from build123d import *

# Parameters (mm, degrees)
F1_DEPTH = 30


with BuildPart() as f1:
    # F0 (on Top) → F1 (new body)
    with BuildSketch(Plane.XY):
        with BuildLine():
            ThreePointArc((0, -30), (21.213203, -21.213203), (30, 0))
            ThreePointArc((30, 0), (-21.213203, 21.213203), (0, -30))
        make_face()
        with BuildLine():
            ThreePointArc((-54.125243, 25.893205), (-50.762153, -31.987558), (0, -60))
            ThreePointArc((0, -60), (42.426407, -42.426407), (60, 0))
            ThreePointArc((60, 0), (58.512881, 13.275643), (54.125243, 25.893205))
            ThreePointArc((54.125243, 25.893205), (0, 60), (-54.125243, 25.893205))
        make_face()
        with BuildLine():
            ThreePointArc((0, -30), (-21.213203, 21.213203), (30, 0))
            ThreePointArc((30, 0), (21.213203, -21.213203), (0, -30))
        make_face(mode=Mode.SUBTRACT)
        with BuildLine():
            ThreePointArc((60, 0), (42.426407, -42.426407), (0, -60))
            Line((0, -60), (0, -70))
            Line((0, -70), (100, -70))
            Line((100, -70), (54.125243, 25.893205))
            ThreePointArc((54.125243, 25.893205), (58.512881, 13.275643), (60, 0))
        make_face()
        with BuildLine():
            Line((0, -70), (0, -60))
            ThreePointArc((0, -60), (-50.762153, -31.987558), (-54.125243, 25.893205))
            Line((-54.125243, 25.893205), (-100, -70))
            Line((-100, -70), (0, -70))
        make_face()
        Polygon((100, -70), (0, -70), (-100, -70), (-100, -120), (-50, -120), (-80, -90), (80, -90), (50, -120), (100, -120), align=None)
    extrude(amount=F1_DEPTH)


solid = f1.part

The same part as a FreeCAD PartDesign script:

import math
import FreeCAD as App
import Part
import Sketcher
from FreeCAD import Vector
Q = App.Units.Quantity

doc = App.newDocument("Part")
params = doc.addObject("Spreadsheet::Sheet", "Params")
for row, (alias, value) in enumerate([
    ("sketch1_radius", "60 mm"),
    ("sketch1_radius2", "30.000001 mm"),
    ("sketch1_width", "50 mm"),
    ("sketch1_width2", "160 mm"),
    ("pad1_length", "30 mm"),
], start=1):
    params.set(f"A{row}", alias)
    params.set(f"B{row}", "=" + value)
    params.setAlias(f"B{row}", alias)

body = doc.addObject("PartDesign::Body", "Body")

sketch1 = doc.addObject("Sketcher::SketchObject", "Sketch")
body.addObject(sketch1)
sketch1.AttachmentSupport = (doc.XY_Plane, [""])
sketch1.MapMode = "FlatFace"
sketch1.addGeometry(Part.LineSegment(Vector(100, -70, 0), Vector(54, 26, 0)), False)
sketch1.addGeometry(Part.ArcOfCircle(Part.Circle(Vector(0, 0, 0), Vector(0, 0, 1), 60), math.radians(26), math.radians(154)), False)
sketch1.addGeometry(Part.LineSegment(Vector(-54, 26, 0), Vector(-100, -70, 0)), False)
sketch1.addGeometry(Part.LineSegment(Vector(-100, -70, 0), Vector(-100, -120, 0)), False)
sketch1.addGeometry(Part.LineSegment(Vector(-100, -120, 0), Vector(-50, -120, 0)), False)
sketch1.addGeometry(Part.LineSegment(Vector(-50, -120, 0), Vector(-80, -90, 0)), False)
sketch1.addGeometry(Part.LineSegment(Vector(-80, -90, 0), Vector(80, -90, 0)), False)
sketch1.addGeometry(Part.LineSegment(Vector(80, -90, 0), Vector(50, -120, 0)), False)
sketch1.addGeometry(Part.LineSegment(Vector(50, -120, 0), Vector(100, -120, 0)), False)
sketch1.addGeometry(Part.LineSegment(Vector(100, -120, 0), Vector(100, -70, 0)), False)
sketch1.addGeometry(Part.ArcOfCircle(Part.Circle(Vector(0, 0, 0), Vector(0, 0, 1), 30), math.radians(-90), math.radians(0)), False)
sketch1.addGeometry(Part.ArcOfCircle(Part.Circle(Vector(0, 0, 0), Vector(0, 0, 1), 30), math.radians(0), math.radians(270)), False)
sketch1.addConstraint(Sketcher.Constraint("Tangent", 0, 2, 1, 1))
sketch1.addConstraint(Sketcher.Constraint("Tangent", 1, 2, 2, 1))
sketch1.addConstraint(Sketcher.Constraint("Coincident", 2, 2, 3, 1))
sketch1.addConstraint(Sketcher.Constraint("Coincident", 3, 2, 4, 1))
sketch1.addConstraint(Sketcher.Constraint("Coincident", 4, 2, 5, 1))
sketch1.addConstraint(Sketcher.Constraint("Coincident", 5, 2, 6, 1))
sketch1.addConstraint(Sketcher.Constraint("Coincident", 6, 2, 7, 1))
sketch1.addConstraint(Sketcher.Constraint("Coincident", 7, 2, 8, 1))
sketch1.addConstraint(Sketcher.Constraint("Coincident", 8, 2, 9, 1))
sketch1.addConstraint(Sketcher.Constraint("Coincident", 9, 2, 0, 1))
sketch1.addConstraint(Sketcher.Constraint("Tangent", 10, 1, 11, 2))
sketch1.addConstraint(Sketcher.Constraint("Coincident", 11, 1, 10, 2))
sketch1.addConstraint(Sketcher.Constraint("Vertical", 3))
sketch1.addConstraint(Sketcher.Constraint("Horizontal", 4))
sketch1.addConstraint(Sketcher.Constraint("Horizontal", 6))
sketch1.addConstraint(Sketcher.Constraint("Horizontal", 8))
sketch1.addConstraint(Sketcher.Constraint("Vertical", 9))
sketch1.addConstraint(Sketcher.Constraint("Coincident", 1, 3, -1, 1))
sketch1.addConstraint(Sketcher.Constraint("Coincident", 10, 3, -1, 1))
sketch1.addConstraint(Sketcher.Constraint("Symmetric", 4, 2, 7, 2, -2))
sketch1.addConstraint(Sketcher.Constraint("Symmetric", 2, 2, 9, 2, -2))
sketch1.addConstraint(Sketcher.Constraint("PointOnObject", 10, 1, -2))
sketch1.addConstraint(Sketcher.Constraint("PointOnObject", 11, 1, -1))
sketch1.addConstraint(Sketcher.Constraint("Perpendicular", 5, 7))
sketch1.addConstraint(Sketcher.Constraint("Equal", 8, 3))
sketch1.addConstraint(Sketcher.Constraint("Equal", 5, 7))
sketch1.addConstraint(Sketcher.Constraint("Radius", 1, Q("60 mm")))
sketch1.addConstraint(Sketcher.Constraint("Radius", 10, Q("30.000001 mm")))
sketch1.addConstraint(Sketcher.Constraint("DistanceX", 4, 1, 4, 2, Q("50 mm")))
sketch1.addConstraint(Sketcher.Constraint("DistanceX", 6, 1, 6, 2, Q("160 mm")))
sketch1.addConstraint(Sketcher.Constraint("DistanceX", 2, 2, -1, 1, Q("100 mm")))
sketch1.addConstraint(Sketcher.Constraint("DistanceY", 2, 2, -1, 1, Q("70 mm")))
sketch1.setExpression("Constraints[26]", "Params.sketch1_radius")
sketch1.setExpression("Constraints[27]", "Params.sketch1_radius2")
sketch1.setExpression("Constraints[28]", "Params.sketch1_width")
sketch1.setExpression("Constraints[29]", "Params.sketch1_width2")
pad1 = doc.addObject("PartDesign::Pad", "Pad")
body.addObject(pad1)
pad1.Profile = sketch1
pad1.setExpression("Length", "Params.pad1_length")

doc.recompute()
